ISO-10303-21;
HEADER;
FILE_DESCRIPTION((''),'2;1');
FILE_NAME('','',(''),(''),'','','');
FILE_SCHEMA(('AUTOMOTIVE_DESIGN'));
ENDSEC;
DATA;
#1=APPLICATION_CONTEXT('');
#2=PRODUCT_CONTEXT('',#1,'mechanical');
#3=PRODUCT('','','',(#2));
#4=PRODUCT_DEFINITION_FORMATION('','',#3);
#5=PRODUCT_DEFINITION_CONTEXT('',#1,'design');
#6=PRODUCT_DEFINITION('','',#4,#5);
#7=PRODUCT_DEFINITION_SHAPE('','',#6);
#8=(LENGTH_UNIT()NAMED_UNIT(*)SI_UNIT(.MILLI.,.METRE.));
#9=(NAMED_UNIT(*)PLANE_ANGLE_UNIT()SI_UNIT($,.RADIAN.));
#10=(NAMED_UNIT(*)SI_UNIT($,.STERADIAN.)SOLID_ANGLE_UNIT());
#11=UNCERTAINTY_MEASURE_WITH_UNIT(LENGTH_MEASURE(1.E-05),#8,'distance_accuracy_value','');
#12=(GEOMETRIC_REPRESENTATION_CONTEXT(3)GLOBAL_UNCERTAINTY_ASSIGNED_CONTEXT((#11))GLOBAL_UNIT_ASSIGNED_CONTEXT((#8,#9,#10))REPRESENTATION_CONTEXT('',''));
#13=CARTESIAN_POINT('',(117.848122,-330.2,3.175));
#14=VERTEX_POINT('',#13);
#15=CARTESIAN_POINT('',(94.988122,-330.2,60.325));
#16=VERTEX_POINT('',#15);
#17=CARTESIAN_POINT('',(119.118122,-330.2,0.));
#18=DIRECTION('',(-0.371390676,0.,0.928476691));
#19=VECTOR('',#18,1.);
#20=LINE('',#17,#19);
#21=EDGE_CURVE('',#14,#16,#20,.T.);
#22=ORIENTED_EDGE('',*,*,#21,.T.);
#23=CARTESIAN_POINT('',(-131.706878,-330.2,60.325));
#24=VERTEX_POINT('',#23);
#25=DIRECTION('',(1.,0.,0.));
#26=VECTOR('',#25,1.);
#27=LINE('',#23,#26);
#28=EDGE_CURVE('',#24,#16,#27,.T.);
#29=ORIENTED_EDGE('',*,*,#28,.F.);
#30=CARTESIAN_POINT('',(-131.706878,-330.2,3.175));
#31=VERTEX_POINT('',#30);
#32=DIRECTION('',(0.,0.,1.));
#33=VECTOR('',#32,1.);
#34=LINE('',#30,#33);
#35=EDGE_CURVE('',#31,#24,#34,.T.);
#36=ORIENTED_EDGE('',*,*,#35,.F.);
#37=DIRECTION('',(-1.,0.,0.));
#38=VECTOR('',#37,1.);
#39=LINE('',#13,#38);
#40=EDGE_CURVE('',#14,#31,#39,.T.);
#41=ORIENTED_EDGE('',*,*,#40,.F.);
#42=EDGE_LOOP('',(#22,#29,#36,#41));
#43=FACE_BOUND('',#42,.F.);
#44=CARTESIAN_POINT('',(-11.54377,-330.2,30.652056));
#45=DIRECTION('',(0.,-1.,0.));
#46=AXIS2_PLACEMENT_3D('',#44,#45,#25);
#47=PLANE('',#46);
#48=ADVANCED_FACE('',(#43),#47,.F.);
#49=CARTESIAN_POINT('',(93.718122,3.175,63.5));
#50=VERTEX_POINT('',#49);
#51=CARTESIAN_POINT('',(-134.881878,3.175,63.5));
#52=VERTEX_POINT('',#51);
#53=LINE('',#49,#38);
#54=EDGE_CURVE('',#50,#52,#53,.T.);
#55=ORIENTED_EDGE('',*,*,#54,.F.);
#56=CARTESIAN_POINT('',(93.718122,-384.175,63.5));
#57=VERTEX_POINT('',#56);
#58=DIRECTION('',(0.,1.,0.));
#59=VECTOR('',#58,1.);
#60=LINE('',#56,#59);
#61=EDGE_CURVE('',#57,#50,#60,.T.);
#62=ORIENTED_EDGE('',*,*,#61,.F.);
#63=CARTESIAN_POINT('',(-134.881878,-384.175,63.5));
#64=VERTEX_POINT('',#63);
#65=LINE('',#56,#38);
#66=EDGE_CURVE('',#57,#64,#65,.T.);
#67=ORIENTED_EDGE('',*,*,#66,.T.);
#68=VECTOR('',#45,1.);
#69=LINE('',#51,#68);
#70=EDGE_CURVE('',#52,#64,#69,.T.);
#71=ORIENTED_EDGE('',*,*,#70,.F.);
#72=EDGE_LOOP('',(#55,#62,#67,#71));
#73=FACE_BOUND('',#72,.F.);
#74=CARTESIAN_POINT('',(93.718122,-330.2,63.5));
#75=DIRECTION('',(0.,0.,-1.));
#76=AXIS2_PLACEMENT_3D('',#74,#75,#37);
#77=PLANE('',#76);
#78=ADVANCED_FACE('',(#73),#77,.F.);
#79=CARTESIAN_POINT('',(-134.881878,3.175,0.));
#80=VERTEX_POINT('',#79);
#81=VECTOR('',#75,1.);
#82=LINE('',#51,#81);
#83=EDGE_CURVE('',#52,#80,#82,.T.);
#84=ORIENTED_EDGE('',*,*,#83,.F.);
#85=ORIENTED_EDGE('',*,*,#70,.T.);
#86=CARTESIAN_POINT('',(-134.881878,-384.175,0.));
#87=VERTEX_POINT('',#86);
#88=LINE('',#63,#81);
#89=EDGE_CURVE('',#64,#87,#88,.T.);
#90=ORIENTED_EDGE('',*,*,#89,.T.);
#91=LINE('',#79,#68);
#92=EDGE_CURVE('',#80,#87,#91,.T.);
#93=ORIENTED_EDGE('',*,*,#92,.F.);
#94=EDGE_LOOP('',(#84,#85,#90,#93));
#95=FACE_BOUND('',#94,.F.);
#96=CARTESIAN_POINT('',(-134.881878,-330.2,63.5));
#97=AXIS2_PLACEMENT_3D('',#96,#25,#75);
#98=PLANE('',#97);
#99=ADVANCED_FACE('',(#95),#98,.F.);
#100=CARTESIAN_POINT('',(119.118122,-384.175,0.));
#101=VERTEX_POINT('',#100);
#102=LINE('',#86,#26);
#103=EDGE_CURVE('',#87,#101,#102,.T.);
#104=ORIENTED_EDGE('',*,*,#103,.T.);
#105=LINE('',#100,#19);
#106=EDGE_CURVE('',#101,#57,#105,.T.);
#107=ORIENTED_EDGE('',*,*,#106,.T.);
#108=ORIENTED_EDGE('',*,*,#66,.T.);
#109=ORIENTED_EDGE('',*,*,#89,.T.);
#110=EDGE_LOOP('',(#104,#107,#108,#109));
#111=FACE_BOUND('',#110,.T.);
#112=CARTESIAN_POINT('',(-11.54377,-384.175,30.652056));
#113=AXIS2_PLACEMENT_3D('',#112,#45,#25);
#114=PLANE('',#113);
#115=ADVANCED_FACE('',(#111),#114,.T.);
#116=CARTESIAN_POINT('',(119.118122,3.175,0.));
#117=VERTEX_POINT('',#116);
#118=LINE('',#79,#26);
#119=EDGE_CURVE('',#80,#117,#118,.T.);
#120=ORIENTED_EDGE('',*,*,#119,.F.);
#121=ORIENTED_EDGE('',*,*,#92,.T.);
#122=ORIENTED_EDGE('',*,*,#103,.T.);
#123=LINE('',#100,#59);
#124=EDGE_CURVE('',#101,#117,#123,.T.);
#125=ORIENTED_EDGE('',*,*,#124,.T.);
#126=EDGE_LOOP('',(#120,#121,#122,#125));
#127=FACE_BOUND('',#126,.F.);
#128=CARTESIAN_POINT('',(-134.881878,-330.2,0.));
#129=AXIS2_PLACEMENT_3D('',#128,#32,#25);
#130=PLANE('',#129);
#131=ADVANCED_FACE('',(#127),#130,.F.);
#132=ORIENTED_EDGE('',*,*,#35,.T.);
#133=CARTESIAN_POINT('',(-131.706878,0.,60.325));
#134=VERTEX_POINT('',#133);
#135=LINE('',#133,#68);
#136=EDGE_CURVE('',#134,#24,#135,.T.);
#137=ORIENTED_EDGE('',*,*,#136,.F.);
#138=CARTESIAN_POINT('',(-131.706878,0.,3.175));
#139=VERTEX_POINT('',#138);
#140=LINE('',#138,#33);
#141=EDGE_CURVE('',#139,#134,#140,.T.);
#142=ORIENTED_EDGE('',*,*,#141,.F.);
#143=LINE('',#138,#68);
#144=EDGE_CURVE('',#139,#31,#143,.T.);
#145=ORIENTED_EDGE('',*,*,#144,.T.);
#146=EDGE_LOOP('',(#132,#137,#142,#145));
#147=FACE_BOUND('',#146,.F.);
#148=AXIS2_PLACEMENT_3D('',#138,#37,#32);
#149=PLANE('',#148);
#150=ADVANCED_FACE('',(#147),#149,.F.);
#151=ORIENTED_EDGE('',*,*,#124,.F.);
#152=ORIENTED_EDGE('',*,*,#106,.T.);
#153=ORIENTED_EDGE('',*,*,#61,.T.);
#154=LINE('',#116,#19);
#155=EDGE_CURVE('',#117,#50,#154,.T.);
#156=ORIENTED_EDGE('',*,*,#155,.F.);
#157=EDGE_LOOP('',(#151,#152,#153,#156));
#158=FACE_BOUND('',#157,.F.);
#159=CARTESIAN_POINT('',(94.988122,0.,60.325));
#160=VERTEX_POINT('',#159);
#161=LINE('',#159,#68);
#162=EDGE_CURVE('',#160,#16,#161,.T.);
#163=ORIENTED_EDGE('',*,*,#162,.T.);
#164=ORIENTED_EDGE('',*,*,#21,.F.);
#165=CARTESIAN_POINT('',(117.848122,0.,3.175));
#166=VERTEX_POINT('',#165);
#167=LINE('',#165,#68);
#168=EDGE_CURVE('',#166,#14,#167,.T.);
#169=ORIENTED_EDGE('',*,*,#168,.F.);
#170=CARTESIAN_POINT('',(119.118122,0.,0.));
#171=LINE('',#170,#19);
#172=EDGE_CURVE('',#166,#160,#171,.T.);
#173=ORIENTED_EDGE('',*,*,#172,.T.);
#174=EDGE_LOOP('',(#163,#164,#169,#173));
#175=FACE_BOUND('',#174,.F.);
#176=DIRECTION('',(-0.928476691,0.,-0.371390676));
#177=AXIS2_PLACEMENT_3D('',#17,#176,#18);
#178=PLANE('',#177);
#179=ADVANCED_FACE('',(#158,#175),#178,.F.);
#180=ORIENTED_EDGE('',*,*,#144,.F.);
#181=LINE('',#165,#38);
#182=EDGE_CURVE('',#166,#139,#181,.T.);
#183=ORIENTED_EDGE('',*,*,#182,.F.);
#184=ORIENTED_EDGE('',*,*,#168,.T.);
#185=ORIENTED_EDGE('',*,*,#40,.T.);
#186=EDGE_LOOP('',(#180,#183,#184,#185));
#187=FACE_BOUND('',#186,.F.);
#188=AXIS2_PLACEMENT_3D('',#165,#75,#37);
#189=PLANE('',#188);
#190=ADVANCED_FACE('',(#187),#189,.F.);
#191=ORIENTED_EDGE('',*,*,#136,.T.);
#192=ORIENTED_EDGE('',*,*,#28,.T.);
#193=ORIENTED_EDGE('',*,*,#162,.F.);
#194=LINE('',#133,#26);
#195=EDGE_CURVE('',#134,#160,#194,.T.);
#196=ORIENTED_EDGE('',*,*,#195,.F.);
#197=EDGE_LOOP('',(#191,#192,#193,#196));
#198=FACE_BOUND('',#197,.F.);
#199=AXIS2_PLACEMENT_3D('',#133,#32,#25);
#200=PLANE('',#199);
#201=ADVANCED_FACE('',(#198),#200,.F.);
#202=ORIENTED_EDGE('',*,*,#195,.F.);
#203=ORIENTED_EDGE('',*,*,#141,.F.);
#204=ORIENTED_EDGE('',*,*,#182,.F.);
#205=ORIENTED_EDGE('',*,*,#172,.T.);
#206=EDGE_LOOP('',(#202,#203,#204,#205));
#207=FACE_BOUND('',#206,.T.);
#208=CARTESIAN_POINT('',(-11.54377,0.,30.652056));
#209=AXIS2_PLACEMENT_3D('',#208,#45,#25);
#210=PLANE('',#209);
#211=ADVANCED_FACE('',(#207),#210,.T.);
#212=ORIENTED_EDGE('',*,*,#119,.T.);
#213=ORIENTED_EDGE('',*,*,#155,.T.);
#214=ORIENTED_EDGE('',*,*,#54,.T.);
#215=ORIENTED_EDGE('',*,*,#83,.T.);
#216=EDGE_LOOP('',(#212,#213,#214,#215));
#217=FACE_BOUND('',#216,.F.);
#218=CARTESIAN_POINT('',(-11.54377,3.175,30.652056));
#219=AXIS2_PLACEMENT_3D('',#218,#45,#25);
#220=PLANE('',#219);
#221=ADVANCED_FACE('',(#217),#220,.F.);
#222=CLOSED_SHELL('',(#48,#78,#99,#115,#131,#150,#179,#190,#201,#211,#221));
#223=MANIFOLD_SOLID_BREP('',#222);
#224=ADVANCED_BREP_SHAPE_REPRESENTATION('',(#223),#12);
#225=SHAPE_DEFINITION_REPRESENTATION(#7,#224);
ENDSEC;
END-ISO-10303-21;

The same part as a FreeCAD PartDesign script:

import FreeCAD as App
import Part
import Sketcher
from FreeCAD import Vector
Q = App.Units.Quantity

doc = App.newDocument("Part")
body = doc.addObject("PartDesign::Body", "Body")

# Sketch on XZ plane
sketch1 = body.newObject("Sketcher::SketchObject", "Sketch")
sketch1.AttachmentSupport = (doc.getObject("XZ_Plane"), [""])
sketch1.MapMode = "FlatFace"
sketch1.addGeometry([
    Part.LineSegment(Vector(-134.881878, 63.5, 0), Vector(-134.881878, 0, 0)),  # 0
    Part.LineSegment(Vector(-134.881878, 0, 0), Vector(119.118122, 0, 0)),  # 1
    Part.LineSegment(Vector(119.118122, 0, 0), Vector(117.848122, 3.175, 0)),  # 2
    Part.LineSegment(Vector(117.848122, 3.175, 0), Vector(-131.706878, 3.175, 0)),  # 3
    Part.LineSegment(Vector(-131.706878, 3.175, 0), Vector(-131.706878, 60.325, 0)),  # 4
    Part.LineSegment(Vector(-131.706878, 60.325, 0), Vector(94.988122, 60.325, 0)),  # 5
    Part.LineSegment(Vector(94.988122, 60.325, 0), Vector(93.718122, 63.5, 0)),  # 6
    Part.LineSegment(Vector(93.718122, 63.5, 0), Vector(-134.881878, 63.5, 0)),  # 7
], False)
sketch1.addConstraint([
    Sketcher.Constraint("Coincident", 0, 2, 1, 1),
    Sketcher.Constraint("Coincident", 1, 2, 2, 1),
    Sketcher.Constraint("Coincident", 2, 2, 3, 1),
    Sketcher.Constraint("Coincident", 3, 2, 4, 1),
    Sketcher.Constraint("Coincident", 4, 2, 5, 1),
    Sketcher.Constraint("Coincident", 5, 2, 6, 1),
    Sketcher.Constraint("Coincident", 6, 2, 7, 1),
    Sketcher.Constraint("Coincident", 7, 2, 0, 1),
    Sketcher.Constraint("Vertical", 0),
    Sketcher.Constraint("Horizontal", 1),
    Sketcher.Constraint("Horizontal", 3),
    Sketcher.Constraint("Vertical", 4),
    Sketcher.Constraint("Horizontal", 5),
    Sketcher.Constraint("Horizontal", 7),
    Sketcher.Constraint("PointOnObject", 0, 2, -1),
    Sketcher.Constraint("Parallel", 2, 6),
    Sketcher.Constraint("Equal", 2, 6),
    Sketcher.Constraint("DistanceX", 1, 1, 1, 2, Q("10 in")),
    Sketcher.Constraint("DistanceX", 7, 2, 7, 1, Q("9 in")),
    Sketcher.Constraint("DistanceY", 0, 2, 0, 1, Q("2.5 in")),
    Sketcher.Constraint("DistanceY", 4, 1, 4, 2, Q("2.25 in")),
    Sketcher.Constraint("DistanceX", 5, 2, 2, 2, Q("0.9 in")),
    Sketcher.Constraint("DistanceX", 3, 2, 3, 1, Q("9.825 in")),
    Sketcher.Constraint("DistanceX", 0, 2, -1, 1, Q("134.881878 mm")),
])
pad1 = body.newObject("PartDesign::Pad", "Pad")
pad1.Profile = sketch1
pad1.Length = Q("13 in")

# Sketch on XZ plane
sketch2 = body.newObject("Sketcher::SketchObject", "Sketch001")
sketch2.AttachmentSupport = (doc.getObject("XZ_Plane"), [""])
sketch2.MapMode = "FlatFace"
sketch2.addGeometry([
    Part.LineSegment(Vector(93.718122, 63.5, 0), Vector(-134.881878, 63.5, 0)),
    Part.LineSegment(Vector(-134.881878, 63.5, 0), Vector(-134.881878, 0, 0)),
    Part.LineSegment(Vector(-134.881878, 0, 0), Vector(119.118122, 0, 0)),
    Part.LineSegment(Vector(119.118122, 0, 0), Vector(93.718122, 63.5, 0)),
], False)
sketch2.addConstraint([
    Sketcher.Constraint("Coincident", 0, 2, 1, 1),
    Sketcher.Constraint("Coincident", 1, 2, 2, 1),
    Sketcher.Constraint("Coincident", 2, 2, 3, 1),
    Sketcher.Constraint("Coincident", 3, 2, 0, 1),
    Sketcher.Constraint("Horizontal", 0),
    Sketcher.Constraint("Vertical", 1),
    Sketcher.Constraint("Horizontal", 2),
    Sketcher.Constraint("PointOnObject", 1, 2, -1),
    Sketcher.Constraint("DistanceX", 0, 2, 0, 1, Q("9 in")),
    Sketcher.Constraint("DistanceX", 2, 1, 2, 2, Q("10 in")),
    Sketcher.Constraint("DistanceY", 1, 2, 1, 1, Q("2.5 in")),
    Sketcher.Constraint("DistanceX", 0, 2, -1, 1, Q("134.881878 mm")),
])
pad2 = body.newObject("PartDesign::Pad", "Pad001")
pad2.Profile = sketch2
pad2.Length = Q("0.125 in")
pad2.Reversed = True

# Sketch on XZ plane
sketch3 = body.newObject("Sketcher::SketchObject", "Sketch002")
sketch3.AttachmentSupport = (doc.getObject("XZ_Plane"), [""])
sketch3.MapMode = "FlatFace"
sketch3.AttachmentOffset = App.Placement(Vector(0, 0, 13 * 25.4), App.Rotation())
sketch3.addGeometry([
    Part.LineSegment(Vector(93.718122, 63.5, 0), Vector(-134.881878, 63.5, 0)),
    Part.LineSegment(Vector(-134.881878, 63.5, 0), Vector(-134.881878, 0, 0)),
    Part.LineSegment(Vector(-134.881878, 0, 0), Vector(119.118122, 0, 0)),
    Part.LineSegment(Vector(119.118122, 0, 0), Vector(93.718122, 63.5, 0)),
], False)
sketch3.addConstraint([
    Sketcher.Constraint("Coincident", 0, 2, 1, 1),
    Sketcher.Constraint("Coincident", 1, 2, 2, 1),
    Sketcher.Constraint("Coincident", 2, 2, 3, 1),
    Sketcher.Constraint("Coincident", 3, 2, 0, 1),
    Sketcher.Constraint("Horizontal", 0),
    Sketcher.Constraint("Vertical", 1),
    Sketcher.Constraint("Horizontal", 2),
    Sketcher.Constraint("PointOnObject", 1, 2, -1),
    Sketcher.Constraint("DistanceX", 0, 2, 0, 1, Q("9 in")),
    Sketcher.Constraint("DistanceX", 2, 1, 2, 2, Q("10 in")),
    Sketcher.Constraint("DistanceY", 1, 2, 1, 1, Q("2.5 in")),
    Sketcher.Constraint("DistanceX", 0, 2, -1, 1, Q("134.881878 mm")),
])
pad3 = body.newObject("PartDesign::Pad", "Pad002")
pad3.Profile = sketch3
pad3.Length = Q("2.125 in")

doc.recompute()
